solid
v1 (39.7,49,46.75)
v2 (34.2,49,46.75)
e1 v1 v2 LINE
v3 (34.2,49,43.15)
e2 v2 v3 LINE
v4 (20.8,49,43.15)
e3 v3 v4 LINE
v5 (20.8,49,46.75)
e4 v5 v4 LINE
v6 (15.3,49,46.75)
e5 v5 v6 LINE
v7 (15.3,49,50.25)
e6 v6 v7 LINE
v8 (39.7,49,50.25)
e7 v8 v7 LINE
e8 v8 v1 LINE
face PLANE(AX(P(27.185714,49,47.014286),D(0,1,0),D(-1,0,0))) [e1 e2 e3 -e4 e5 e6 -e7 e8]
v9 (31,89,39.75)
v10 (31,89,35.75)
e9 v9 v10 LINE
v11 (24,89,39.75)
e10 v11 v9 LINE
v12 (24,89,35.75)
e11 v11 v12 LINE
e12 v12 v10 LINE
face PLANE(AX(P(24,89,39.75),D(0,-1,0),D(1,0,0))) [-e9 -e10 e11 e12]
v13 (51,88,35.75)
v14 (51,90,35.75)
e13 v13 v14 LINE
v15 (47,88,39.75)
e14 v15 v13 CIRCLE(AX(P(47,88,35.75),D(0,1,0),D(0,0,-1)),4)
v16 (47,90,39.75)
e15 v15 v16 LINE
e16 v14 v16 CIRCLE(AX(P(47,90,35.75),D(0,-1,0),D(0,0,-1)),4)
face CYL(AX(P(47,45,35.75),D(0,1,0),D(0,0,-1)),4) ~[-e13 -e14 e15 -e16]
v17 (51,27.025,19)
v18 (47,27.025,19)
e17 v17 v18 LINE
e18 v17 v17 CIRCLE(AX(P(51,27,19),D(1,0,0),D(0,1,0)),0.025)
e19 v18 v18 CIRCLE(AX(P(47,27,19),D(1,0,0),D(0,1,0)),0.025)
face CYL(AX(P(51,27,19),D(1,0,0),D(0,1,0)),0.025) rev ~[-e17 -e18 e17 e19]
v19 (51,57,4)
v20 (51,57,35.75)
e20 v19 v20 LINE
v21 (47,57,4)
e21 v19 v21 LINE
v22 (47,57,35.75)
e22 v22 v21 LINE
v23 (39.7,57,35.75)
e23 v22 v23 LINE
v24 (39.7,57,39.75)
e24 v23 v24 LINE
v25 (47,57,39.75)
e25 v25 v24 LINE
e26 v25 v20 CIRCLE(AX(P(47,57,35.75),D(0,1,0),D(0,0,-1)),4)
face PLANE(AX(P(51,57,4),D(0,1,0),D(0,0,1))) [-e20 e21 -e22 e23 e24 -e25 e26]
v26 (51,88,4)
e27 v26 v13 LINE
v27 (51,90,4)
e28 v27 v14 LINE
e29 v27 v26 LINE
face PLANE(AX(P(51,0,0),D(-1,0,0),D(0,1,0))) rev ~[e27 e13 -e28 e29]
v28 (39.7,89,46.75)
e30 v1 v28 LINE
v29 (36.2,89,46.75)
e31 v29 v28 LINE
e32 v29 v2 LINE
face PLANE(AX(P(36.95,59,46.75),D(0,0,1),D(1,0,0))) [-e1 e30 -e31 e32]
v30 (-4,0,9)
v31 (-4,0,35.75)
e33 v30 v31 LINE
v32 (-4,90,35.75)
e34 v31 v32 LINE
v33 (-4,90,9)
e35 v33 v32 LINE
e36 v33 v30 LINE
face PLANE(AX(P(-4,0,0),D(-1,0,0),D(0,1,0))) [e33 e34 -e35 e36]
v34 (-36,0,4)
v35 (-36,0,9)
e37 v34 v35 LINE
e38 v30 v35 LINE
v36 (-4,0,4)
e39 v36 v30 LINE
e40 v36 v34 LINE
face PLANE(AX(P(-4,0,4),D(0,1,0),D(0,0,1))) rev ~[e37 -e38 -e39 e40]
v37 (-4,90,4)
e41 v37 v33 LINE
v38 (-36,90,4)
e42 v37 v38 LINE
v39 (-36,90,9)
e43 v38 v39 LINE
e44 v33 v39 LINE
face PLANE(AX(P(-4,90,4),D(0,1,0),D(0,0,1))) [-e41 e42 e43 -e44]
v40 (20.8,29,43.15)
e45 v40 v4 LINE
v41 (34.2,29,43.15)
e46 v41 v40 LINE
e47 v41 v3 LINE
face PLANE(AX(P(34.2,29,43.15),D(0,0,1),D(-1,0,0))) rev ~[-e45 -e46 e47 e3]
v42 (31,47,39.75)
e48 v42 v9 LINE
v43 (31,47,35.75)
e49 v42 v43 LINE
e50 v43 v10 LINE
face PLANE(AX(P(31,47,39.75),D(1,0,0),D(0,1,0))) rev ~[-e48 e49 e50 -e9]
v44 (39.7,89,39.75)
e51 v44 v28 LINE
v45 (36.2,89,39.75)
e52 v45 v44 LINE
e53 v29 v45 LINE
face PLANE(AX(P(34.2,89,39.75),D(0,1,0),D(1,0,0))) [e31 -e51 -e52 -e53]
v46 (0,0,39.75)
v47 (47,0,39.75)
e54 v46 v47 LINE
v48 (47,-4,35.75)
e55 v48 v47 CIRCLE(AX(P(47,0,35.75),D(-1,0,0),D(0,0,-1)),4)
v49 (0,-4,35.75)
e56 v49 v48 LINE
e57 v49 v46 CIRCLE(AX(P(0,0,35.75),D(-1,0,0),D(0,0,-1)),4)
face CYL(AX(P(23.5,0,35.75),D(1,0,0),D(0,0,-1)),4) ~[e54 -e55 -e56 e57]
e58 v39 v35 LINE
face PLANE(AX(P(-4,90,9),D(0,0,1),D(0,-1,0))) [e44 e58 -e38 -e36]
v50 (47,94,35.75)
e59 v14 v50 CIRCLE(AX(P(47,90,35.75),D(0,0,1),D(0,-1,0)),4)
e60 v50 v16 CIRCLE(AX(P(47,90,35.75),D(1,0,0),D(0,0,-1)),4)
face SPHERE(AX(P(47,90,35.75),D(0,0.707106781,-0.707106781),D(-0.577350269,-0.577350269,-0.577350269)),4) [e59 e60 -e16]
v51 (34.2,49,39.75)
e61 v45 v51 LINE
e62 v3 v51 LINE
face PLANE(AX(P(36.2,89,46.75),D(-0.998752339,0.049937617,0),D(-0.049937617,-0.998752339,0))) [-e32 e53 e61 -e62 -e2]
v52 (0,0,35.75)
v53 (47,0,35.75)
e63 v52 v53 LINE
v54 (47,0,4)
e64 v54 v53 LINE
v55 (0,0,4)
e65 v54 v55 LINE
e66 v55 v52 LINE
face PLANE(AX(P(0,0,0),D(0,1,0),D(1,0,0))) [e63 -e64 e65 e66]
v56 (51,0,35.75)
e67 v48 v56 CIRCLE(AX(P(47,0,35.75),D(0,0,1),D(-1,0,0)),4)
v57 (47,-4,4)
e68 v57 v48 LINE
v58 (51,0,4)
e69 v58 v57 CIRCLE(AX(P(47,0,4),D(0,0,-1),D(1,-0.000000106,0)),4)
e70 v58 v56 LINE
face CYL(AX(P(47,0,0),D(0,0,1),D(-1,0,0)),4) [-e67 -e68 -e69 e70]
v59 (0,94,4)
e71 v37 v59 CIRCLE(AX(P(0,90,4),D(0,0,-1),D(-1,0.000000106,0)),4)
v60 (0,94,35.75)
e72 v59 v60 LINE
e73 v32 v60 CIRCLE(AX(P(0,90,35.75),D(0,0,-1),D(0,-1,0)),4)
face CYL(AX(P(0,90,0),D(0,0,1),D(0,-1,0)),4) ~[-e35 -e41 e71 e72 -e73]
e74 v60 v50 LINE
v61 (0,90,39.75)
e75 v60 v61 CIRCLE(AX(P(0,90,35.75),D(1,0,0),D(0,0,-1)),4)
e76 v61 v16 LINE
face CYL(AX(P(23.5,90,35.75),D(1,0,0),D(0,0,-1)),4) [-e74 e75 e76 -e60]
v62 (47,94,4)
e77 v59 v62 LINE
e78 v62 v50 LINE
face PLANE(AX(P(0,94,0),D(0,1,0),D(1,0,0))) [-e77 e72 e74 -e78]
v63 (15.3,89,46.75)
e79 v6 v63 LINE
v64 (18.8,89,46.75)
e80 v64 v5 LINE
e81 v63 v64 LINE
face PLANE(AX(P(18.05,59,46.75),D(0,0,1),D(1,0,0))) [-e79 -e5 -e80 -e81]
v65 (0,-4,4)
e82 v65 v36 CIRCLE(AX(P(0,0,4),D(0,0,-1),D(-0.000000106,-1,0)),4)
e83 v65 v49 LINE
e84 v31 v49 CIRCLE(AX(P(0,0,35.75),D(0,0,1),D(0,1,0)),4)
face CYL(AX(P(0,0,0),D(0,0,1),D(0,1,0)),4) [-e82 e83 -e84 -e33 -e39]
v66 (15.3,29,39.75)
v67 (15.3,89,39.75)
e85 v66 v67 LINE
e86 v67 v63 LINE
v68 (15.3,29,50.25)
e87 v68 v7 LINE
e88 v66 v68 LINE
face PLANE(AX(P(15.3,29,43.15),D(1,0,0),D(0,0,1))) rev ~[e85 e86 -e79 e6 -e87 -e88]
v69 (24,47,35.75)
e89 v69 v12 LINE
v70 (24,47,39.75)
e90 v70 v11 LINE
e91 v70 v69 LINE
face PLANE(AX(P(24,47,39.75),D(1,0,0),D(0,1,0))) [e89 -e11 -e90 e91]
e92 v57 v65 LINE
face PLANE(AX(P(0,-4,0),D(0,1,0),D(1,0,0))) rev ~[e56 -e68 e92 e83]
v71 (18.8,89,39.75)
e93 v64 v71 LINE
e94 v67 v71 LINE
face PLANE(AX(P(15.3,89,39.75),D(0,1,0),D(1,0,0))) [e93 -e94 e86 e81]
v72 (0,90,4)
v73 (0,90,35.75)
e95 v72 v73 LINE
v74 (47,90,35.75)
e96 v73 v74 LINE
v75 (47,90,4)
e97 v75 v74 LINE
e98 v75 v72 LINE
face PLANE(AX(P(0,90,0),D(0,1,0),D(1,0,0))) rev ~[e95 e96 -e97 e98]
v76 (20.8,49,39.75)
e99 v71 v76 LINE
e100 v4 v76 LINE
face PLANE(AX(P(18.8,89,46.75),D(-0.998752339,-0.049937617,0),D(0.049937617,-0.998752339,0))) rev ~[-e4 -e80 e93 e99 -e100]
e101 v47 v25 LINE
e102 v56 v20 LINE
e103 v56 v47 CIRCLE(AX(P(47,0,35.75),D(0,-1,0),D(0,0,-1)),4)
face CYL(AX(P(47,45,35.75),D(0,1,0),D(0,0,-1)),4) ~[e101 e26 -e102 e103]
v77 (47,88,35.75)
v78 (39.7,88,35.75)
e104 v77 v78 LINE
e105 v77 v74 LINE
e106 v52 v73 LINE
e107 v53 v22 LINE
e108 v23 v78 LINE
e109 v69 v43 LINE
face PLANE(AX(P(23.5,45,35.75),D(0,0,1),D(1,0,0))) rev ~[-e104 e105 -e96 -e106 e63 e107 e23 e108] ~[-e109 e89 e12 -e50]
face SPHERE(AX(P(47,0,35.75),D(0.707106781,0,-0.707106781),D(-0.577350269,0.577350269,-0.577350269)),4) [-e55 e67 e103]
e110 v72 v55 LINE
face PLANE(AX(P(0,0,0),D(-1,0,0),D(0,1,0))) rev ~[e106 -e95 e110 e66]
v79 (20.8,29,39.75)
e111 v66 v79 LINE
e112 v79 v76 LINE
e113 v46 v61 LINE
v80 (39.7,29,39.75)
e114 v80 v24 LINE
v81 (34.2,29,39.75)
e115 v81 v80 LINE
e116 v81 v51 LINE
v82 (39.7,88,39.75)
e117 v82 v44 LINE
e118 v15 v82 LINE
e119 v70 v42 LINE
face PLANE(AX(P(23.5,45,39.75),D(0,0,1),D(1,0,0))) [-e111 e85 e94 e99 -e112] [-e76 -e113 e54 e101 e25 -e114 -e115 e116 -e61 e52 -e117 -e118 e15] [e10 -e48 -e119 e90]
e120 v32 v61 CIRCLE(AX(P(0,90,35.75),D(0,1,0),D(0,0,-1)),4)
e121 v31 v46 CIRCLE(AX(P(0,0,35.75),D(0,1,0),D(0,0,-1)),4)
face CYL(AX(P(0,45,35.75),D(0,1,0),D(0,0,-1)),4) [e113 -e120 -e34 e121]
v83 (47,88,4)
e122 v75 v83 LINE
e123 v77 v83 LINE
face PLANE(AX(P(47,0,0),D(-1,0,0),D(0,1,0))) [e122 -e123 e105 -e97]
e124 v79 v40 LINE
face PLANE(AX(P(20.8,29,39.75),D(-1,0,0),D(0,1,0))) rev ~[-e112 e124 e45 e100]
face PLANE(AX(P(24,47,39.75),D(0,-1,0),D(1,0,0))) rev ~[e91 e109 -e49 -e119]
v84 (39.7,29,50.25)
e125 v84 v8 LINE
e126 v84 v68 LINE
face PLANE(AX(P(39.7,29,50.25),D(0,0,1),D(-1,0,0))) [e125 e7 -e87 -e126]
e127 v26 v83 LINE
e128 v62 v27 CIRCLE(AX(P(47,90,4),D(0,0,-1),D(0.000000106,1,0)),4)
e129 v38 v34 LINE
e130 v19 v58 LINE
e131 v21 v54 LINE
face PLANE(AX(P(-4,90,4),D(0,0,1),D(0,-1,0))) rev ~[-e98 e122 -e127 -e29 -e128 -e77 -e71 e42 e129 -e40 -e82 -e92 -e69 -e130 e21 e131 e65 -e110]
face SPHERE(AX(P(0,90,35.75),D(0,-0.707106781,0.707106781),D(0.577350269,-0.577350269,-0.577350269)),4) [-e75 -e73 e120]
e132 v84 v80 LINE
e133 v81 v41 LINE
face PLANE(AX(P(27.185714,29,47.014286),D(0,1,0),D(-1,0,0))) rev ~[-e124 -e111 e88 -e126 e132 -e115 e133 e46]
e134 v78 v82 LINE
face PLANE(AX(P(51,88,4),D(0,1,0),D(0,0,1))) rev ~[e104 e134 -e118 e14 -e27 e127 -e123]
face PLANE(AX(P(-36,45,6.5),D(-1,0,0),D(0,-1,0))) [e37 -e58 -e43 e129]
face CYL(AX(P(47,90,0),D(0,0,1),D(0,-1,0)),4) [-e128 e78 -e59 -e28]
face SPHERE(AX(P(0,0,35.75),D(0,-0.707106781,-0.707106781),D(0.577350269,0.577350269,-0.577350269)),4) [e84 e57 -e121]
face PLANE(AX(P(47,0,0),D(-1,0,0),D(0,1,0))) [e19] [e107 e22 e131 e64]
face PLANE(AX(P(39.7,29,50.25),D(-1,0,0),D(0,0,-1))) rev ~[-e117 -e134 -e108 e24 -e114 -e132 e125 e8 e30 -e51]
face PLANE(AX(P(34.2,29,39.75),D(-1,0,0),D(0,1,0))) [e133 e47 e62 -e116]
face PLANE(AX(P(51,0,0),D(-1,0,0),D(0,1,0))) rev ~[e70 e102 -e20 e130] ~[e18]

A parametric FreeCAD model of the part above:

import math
import FreeCAD as App
import Part
import Sketcher

V = App.Vector


def faces_at(feature, points):
    """Names of the faces that lie closest to the given points."""
    faces = feature.Shape.Faces
    near = lambda p: min(range(len(faces)), key=lambda i: faces[i].distToShape(Part.Vertex(*p))[0])
    return sorted({f"Face{near(p) + 1}" for p in points})

doc = App.newDocument("Part")
body = doc.addObject("PartDesign::Body", "Body")

# Sketch on XY plane
sketch1 = doc.addObject("Sketcher::SketchObject", "Sketch")
body.addObject(sketch1)
sketch1.AttachmentSupport = (doc.XY_Plane, [""])
sketch1.MapMode = "FlatFace"
sketch1.addGeometry([
    Part.LineSegment(V(0, 90, 0), V(0, 0, 0)),
    Part.LineSegment(V(0, 0, 0), V(47, 0, 0)),
    Part.LineSegment(V(47, 0, 0), V(47, 90, 0)),
    Part.LineSegment(V(47, 90, 0), V(0, 90, 0)),
], False)
sketch1.addConstraint([
    Sketcher.Constraint("Coincident", 0, 2, 1, 1),
    Sketcher.Constraint("Coincident", 1, 2, 2, 1),
    Sketcher.Constraint("Coincident", 2, 2, 3, 1),
    Sketcher.Constraint("Coincident", 3, 2, 0, 1),
    Sketcher.Constraint("Vertical", 0),
    Sketcher.Constraint("Horizontal", 1),
    Sketcher.Constraint("Vertical", 2),
    Sketcher.Constraint("Horizontal", 3),
    Sketcher.Constraint("Coincident", 0, 2, -1, 1),
    Sketcher.Constraint("DistanceX", 1, 1, 1, 2, 47.0),
    Sketcher.Constraint("DistanceY", 0, 2, 0, 1, 90.0),
])
pad1 = doc.addObject("PartDesign::Pad", "Pad")
body.addObject(pad1)
pad1.Profile = sketch1
pad1.Length = 35.75
doc.recompute()

thickness = doc.addObject("PartDesign::Thickness", "Thickness")
body.addObject(thickness)
thickness.Base = (pad1, faces_at(pad1, [(23.5, 45, 0)]))
thickness.Value = 4
thickness.Reversed = False
thickness.Join = "Arc"

# Sketch on YZ plane
sketch2 = doc.addObject("Sketcher::SketchObject", "Sketch001")
body.addObject(sketch2)
sketch2.AttachmentSupport = (doc.YZ_Plane, [""])
sketch2.MapMode = "FlatFace"
sketch2.AttachmentOffset = App.Placement(V(0, 0, 51), App.Rotation())
sketch2.addGeometry(Part.Circle(V(27, 19, 0), V(0, 0, 1), 0.025), False)
sketch2.addConstraint([
    Sketcher.Constraint("Diameter", 0, 0.05),
    Sketcher.Constraint("DistanceX", -1, 1, 0, 3, 27.0),
    Sketcher.Constraint("DistanceY", -1, 1, 0, 3, 19.0),
])
pocket1 = doc.addObject("PartDesign::Pocket", "Pocket")
body.addObject(pocket1)
pocket1.Profile = sketch2
pocket1.Length = 5

# Sketch on XY plane
sketch3 = doc.addObject("Sketcher::SketchObject", "Sketch002")
body.addObject(sketch3)
sketch3.AttachmentSupport = (doc.XY_Plane, [""])
sketch3.MapMode = "FlatFace"
sketch3.AttachmentOffset = App.Placement(V(0, 0, 39.75), App.Rotation())
sketch3.addGeometry([
    Part.LineSegment(V(24, 89, 0), V(24, 47, 0)),
    Part.LineSegment(V(24, 47, 0), V(31, 47, 0)),
    Part.LineSegment(V(31, 47, 0), V(31, 89, 0)),
    Part.LineSegment(V(31, 89, 0), V(24, 89, 0)),
], False)
sketch3.addConstraint([
    Sketcher.Constraint("Coincident", 0, 2, 1, 1),
    Sketcher.Constraint("Coincident", 1, 2, 2, 1),
    Sketcher.Constraint("Coincident", 2, 2, 3, 1),
    Sketcher.Constraint("Coincident", 3, 2, 0, 1),
    Sketcher.Constraint("Vertical", 0),
    Sketcher.Constraint("Horizontal", 1),
    Sketcher.Constraint("Vertical", 2),
    Sketcher.Constraint("Horizontal", 3),
    Sketcher.Constraint("DistanceX", 1, 1, 1, 2, 7.0),
    Sketcher.Constraint("DistanceY", 0, 2, 0, 1, 42.0),
    Sketcher.Constraint("DistanceX", -1, 1, 0, 2, 24.0),
    Sketcher.Constraint("DistanceY", -1, 1, 0, 2, 47.0),
])
pocket2 = doc.addObject("PartDesign::Pocket", "Pocket001")
body.addObject(pocket2)
pocket2.Profile = sketch3
pocket2.Length = 5

# Sketch on XY plane
sketch4 = doc.addObject("Sketcher::SketchObject", "Sketch003")
body.addObject(sketch4)
sketch4.AttachmentSupport = (doc.XY_Plane, [""])
sketch4.MapMode = "FlatFace"
sketch4.AttachmentOffset = App.Placement(V(0, 0, 39.75), App.Rotation())
sketch4.addGeometry([
    Part.LineSegment(V(15, 89, 0), V(15, 29, 0)),  # 0
    Part.LineSegment(V(15, 29, 0), V(21, 29, 0)),  # 1
    Part.LineSegment(V(21, 29, 0), V(21, 89, 0)),  # 2
    Part.LineSegment(V(21, 89, 0), V(15, 89, 0)),  # 3
    Part.LineSegment(V(34, 89, 0), V(34, 29, 0)),  # 4
    Part.LineSegment(V(34, 29, 0), V(40, 29, 0)),  # 5
    Part.LineSegment(V(40, 29, 0), V(40, 89, 0)),  # 6
    Part.LineSegment(V(40, 89, 0), V(34, 89, 0)),  # 7
], False)
sketch4.addConstraint([
    Sketcher.Constraint("Coincident", 0, 2, 1, 1),
    Sketcher.Constraint("Coincident", 1, 2, 2, 1),
    Sketcher.Constraint("Coincident", 2, 2, 3, 1),
    Sketcher.Constraint("Coincident", 3, 2, 0, 1),
    Sketcher.Constraint("Coincident", 4, 2, 5, 1),
    Sketcher.Constraint("Coincident", 5, 2, 6, 1),
    Sketcher.Constraint("Coincident", 6, 2, 7, 1),
    Sketcher.Constraint("Coincident", 7, 2, 4, 1),
    Sketcher.Constraint("Vertical", 0),
    Sketcher.Constraint("Horizontal", 1),
    Sketcher.Constraint("Vertical", 2),
    Sketcher.Constraint("Horizontal", 3),
    Sketcher.Constraint("Vertical", 4),
    Sketcher.Constraint("Horizontal", 5),
    Sketcher.Constraint("Vertical", 6),
    Sketcher.Constraint("Horizontal", 7),
    Sketcher.Constraint("Horizontal", 1, 2, 4, 2),
    Sketcher.Constraint("Horizontal", 3, 2, 6, 2),
    Sketcher.Constraint("Equal", 3, 5),
    Sketcher.Constraint("DistanceY", 0, 2, 0, 1, 60.0),
    Sketcher.Constraint("DistanceX", 1, 1, 1, 2, 5.5),
    Sketcher.Constraint("DistanceY", -1, 1, 0, 2, 29.0),
    Sketcher.Constraint("DistanceX", -1, 1, 0, 2, 15.3),
    Sketcher.Constraint("DistanceX", -1, 1, 4, 2, 34.2),
])
pad2 = doc.addObject("PartDesign::Pad", "Pad001")
body.addObject(pad2)
pad2.Profile = sketch4
pad2.Length = 7

# Sketch on XY plane
sketch5 = doc.addObject("Sketcher::SketchObject", "Sketch004")
body.addObject(sketch5)
sketch5.AttachmentSupport = (doc.XY_Plane, [""])
sketch5.MapMode = "FlatFace"
sketch5.addGeometry([
    Part.ArcOfCircle(Part.Circle(V(0, 90, 0), V(0, 0, 1), 4), math.radians(90), math.radians(180)),  # 0
    Part.LineSegment(V(0, 94, 0), V(47, 94, 0)),  # 1
    Part.ArcOfCircle(Part.Circle(V(47, 90, 0), V(0, 0, 1), 4), math.radians(0), math.radians(90)),  # 2
    Part.LineSegment(V(51, 90, 0), V(51, 0, 0)),  # 3
    Part.ArcOfCircle(Part.Circle(V(47, 0, 0), V(0, 0, 1), 4), math.radians(-90), math.radians(0)),  # 4
    Part.LineSegment(V(47, -4, 0), V(0, -4, 0)),  # 5
    Part.ArcOfCircle(Part.Circle(V(0, 0, 0), V(0, 0, 1), 4), math.radians(-180), math.radians(-90)),  # 6
    Part.LineSegment(V(-4, 0, 0), V(-4, 90, 0)),  # 7
    Part.LineSegment(V(47, 0, 0), V(47, 90, 0)),  # 8
    Part.LineSegment(V(47, 90, 0), V(0, 90, 0)),  # 9
    Part.LineSegment(V(0, 90, 0), V(0, 0, 0)),  # 10
    Part.LineSegment(V(0, 0, 0), V(47, 0, 0)),  # 11
], False)
sketch5.addConstraint([
    Sketcher.Constraint("Tangent", 0, 1, 1, 1),
    Sketcher.Constraint("Tangent", 1, 2, 2, 2),
    Sketcher.Constraint("Tangent", 2, 1, 3, 1),
    Sketcher.Constraint("Tangent", 3, 2, 4, 2),
    Sketcher.Constraint("Tangent", 4, 1, 5, 1),
    Sketcher.Constraint("Tangent", 5, 2, 6, 2),
    Sketcher.Constraint("Tangent", 6, 1, 7, 1),
    Sketcher.Constraint("Tangent", 7, 2, 0, 2),
    Sketcher.Constraint("Coincident", 8, 2, 9, 1),
    Sketcher.Constraint("Coincident", 9, 2, 10, 1),
    Sketcher.Constraint("Coincident", 10, 2, 11, 1),
    Sketcher.Constraint("Coincident", 11, 2, 8, 1),
    Sketcher.Constraint("Horizontal", 1),
    Sketcher.Constraint("Vertical", 3),
    Sketcher.Constraint("Horizontal", 5),
    Sketcher.Constraint("Vertical", 7),
    Sketcher.Constraint("Vertical", 8),
    Sketcher.Constraint("Horizontal", 9),
    Sketcher.Constraint("Vertical", 10),
    Sketcher.Constraint("Horizontal", 11),
    Sketcher.Constraint("Coincident", 6, 3, -1, 1),
    Sketcher.Constraint("Coincident", 10, 2, -1, 1),
    Sketcher.Constraint("Coincident", 8, 2, 2, 3),
    Sketcher.Constraint("Coincident", 9, 2, 0, 3),
    Sketcher.Constraint("Equal", 2, 4),
    Sketcher.Constraint("Radius", 0, 4.0),
    Sketcher.Constraint("DistanceX", 1, 1, 1, 2, 47.0),
    Sketcher.Constraint("DistanceY", 3, 2, 3, 1, 90.0),
])
pocket3 = doc.addObject("PartDesign::Pocket", "Pocket002")
body.addObject(pocket3)
pocket3.Profile = sketch5
pocket3.Length = 4
pocket3.Reversed = True

# Sketch on YZ plane
sketch6 = doc.addObject("Sketcher::SketchObject", "Sketch005")
body.addObject(sketch6)
sketch6.AttachmentSupport = (doc.YZ_Plane, [""])
sketch6.MapMode = "FlatFace"
sketch6.AttachmentOffset = App.Placement(V(0, 0, 51), App.Rotation())
sketch6.addGeometry([
    Part.LineSegment(V(57, 44, 0), V(57, 4, 0)),
    Part.LineSegment(V(57, 4, 0), V(88, 4, 0)),
    Part.LineSegment(V(88, 4, 0), V(88, 44, 0)),
    Part.LineSegment(V(88, 44, 0), V(57, 44, 0)),
], False)
sketch6.addConstraint([
    Sketcher.Constraint("Coincident", 0, 2, 1, 1),
    Sketcher.Constraint("Coincident", 1, 2, 2, 1),
    Sketcher.Constraint("Coincident", 2, 2, 3, 1),
    Sketcher.Constraint("Coincident", 3, 2, 0, 1),
    Sketcher.Constraint("Vertical", 0),
    Sketcher.Constraint("Horizontal", 1),
    Sketcher.Constraint("Vertical", 2),
    Sketcher.Constraint("Horizontal", 3),
    Sketcher.Constraint("DistanceX", 1, 1, 1, 2, 31.0),
    Sketcher.Constraint("DistanceY", 0, 2, 0, 1, 40.0),
    Sketcher.Constraint("DistanceX", -1, 1, 0, 2, 57.0),
    Sketcher.Constraint("DistanceY", -1, 1, 0, 2, 4.0),
])
pocket4 = doc.addObject("PartDesign::Pocket", "Pocket003")
body.addObject(pocket4)
pocket4.Profile = sketch6
pocket4.Length = 11.3

# Sketch on YZ plane
sketch7 = doc.addObject("Sketcher::SketchObject", "Sketch006")
body.addObject(sketch7)
sketch7.AttachmentSupport = (doc.YZ_Plane, [""])
sketch7.MapMode = "FlatFace"
sketch7.AttachmentOffset = App.Placement(V(0, 0, -4), App.Rotation())
sketch7.addGeometry([
    Part.LineSegment(V(90, 9, 0), V(90, 4, 0)),
    Part.LineSegment(V(90, 4, 0), V(0, 4, 0)),
    Part.LineSegment(V(0, 4, 0), V(0, 9, 0)),
    Part.LineSegment(V(0, 9, 0), V(90, 9, 0)),
], False)
sketch7.addConstraint([
    Sketcher.Constraint("Coincident", 0, 2, 1, 1),
    Sketcher.Constraint("Coincident", 1, 2, 2, 1),
    Sketcher.Constraint("Coincident", 2, 2, 3, 1),
    Sketcher.Constraint("Coincident", 3, 2, 0, 1),
    Sketcher.Constraint("Vertical", 0),
    Sketcher.Constraint("Horizontal", 1),
    Sketcher.Constraint("Vertical", 2),
    Sketcher.Constraint("Horizontal", 3),
    Sketcher.Constraint("PointOnObject", 1, 2, -2),
    Sketcher.Constraint("DistanceX", 1, 2, 1, 1, 90.0),
    Sketcher.Constraint("DistanceY", 0, 2, 0, 1, 5.0),
    Sketcher.Constraint("DistanceY", -1, 1, 0, 2, 4.0),
])
pad3 = doc.addObject("PartDesign::Pad", "Pad002")
body.addObject(pad3)
pad3.Profile = sketch7
pad3.Length = 32
pad3.Reversed = True

# Sketch on XZ plane
sketch8 = doc.addObject("Sketcher::SketchObject", "Sketch007")
body.addObject(sketch8)
sketch8.AttachmentSupport = (doc.XZ_Plane, [""])
sketch8.MapMode = "FlatFace"
sketch8.AttachmentOffset = App.Placement(V(0, 0, -29), App.Rotation())
sketch8.addGeometry([
    Part.LineSegment(V(39.7, 50.2, 0), V(15.3, 50.2, 0)),  # 0
    Part.LineSegment(V(15.3, 50.2, 0), V(15.3, 43.1, 0)),  # 1
    Part.LineSegment(V(15.3, 43.1, 0), V(34.2, 43.1, 0)),  # 2
    Part.LineSegment(V(34.2, 43.1, 0), V(34.2, 46.8, 0)),  # 3
    Part.LineSegment(V(34.2, 46.8, 0), V(39.7, 46.8, 0)),  # 4
    Part.LineSegment(V(39.7, 46.8, 0), V(39.7, 50.2, 0)),  # 5
], False)
sketch8.addConstraint([
    Sketcher.Constraint("Coincident", 0, 2, 1, 1),
    Sketcher.Constraint("Coincident", 1, 2, 2, 1),
    Sketcher.Constraint("Coincident", 2, 2, 3, 1),
    Sketcher.Constraint("Coincident", 3, 2, 4, 1),
    Sketcher.Constraint("Coincident", 4, 2, 5, 1),
    Sketcher.Constraint("Coincident", 5, 2, 0, 1),
    Sketcher.Constraint("Horizontal", 0),
    Sketcher.Constraint("Vertical", 1),
    Sketcher.Constraint("Horizontal", 2),
    Sketcher.Constraint("Vertical", 3),
    Sketcher.Constraint("Horizontal", 4),
    Sketcher.Constraint("Vertical", 5),
    Sketcher.Constraint("DistanceX", 0, 2, 0, 1, 24.4),
    Sketcher.Constraint("DistanceX", 2, 1, 2, 2, 18.9),
    Sketcher.Constraint("DistanceY", 1, 2, 1, 1, 7.1),
    Sketcher.Constraint("DistanceY", 3, 1, 3, 2, 3.6),
    Sketcher.Constraint("DistanceX", -1, 1, 0, 2, 15.3),
    Sketcher.Constraint("DistanceY", -1, 1, 0, 2, 50.25),
])
pad4 = doc.addObject("PartDesign::Pad", "Pad003")
body.addObject(pad4)
pad4.Profile = sketch8
pad4.Length = 20
pad4.Reversed = True

# Sketch on XY plane
sketch9 = doc.addObject("Sketcher::SketchObject", "Sketch008")
body.addObject(sketch9)
sketch9.AttachmentSupport = (doc.XY_Plane, [""])
sketch9.MapMode = "FlatFace"
sketch9.AttachmentOffset = App.Placement(V(0, 0, 46.75), App.Rotation())
sketch9.addGeometry([
    Part.LineSegment(V(20.8, 89, 0), V(18.8, 89, 0)),  # 0
    Part.LineSegment(V(18.8, 89, 0), V(20.8, 49, 0)),  # 1
    Part.LineSegment(V(20.8, 49, 0), V(20.8, 89, 0)),  # 2
    Part.LineSegment(V(36.2, 89, 0), V(34.2, 89, 0)),  # 3
    Part.LineSegment(V(34.2, 89, 0), V(34.2, 49, 0)),  # 4
    Part.LineSegment(V(34.2, 49, 0), V(36.2, 89, 0)),  # 5
], False)
sketch9.addConstraint([
    Sketcher.Constraint("Coincident", 0, 2, 1, 1),
    Sketcher.Constraint("Coincident", 1, 2, 2, 1),
    Sketcher.Constraint("Coincident", 2, 2, 0, 1),
    Sketcher.Constraint("Coincident", 3, 2, 4, 1),
    Sketcher.Constraint("Coincident", 4, 2, 5, 1),
    Sketcher.Constraint("Coincident", 5, 2, 3, 1),
    Sketcher.Constraint("Horizontal", 0),
    Sketcher.Constraint("Vertical", 2),
    Sketcher.Constraint("Horizontal", 3),
    Sketcher.Constraint("Vertical", 4),
    Sketcher.Constraint("Horizontal", 2, 2, 3, 2),
    Sketcher.Constraint("Horizontal", 1, 2, 4, 2),
    Sketcher.Constraint("Equal", 0, 3),
    Sketcher.Constraint("DistanceX", 0, 2, 0, 1, 2.0),
    Sketcher.Constraint("DistanceY", 2, 1, 2, 2, 40.0),
    Sketcher.Constraint("DistanceY", -1, 1, 0, 2, 89.0),
    Sketcher.Constraint("DistanceX", -1, 1, 0, 2, 18.8),
    Sketcher.Constraint("DistanceX", -1, 1, 3, 2, 34.2),
])
pocket5 = doc.addObject("PartDesign::Pocket", "Pocket004")
body.addObject(pocket5)
pocket5.Profile = sketch9
pocket5.Length = 7

doc.recompute()
